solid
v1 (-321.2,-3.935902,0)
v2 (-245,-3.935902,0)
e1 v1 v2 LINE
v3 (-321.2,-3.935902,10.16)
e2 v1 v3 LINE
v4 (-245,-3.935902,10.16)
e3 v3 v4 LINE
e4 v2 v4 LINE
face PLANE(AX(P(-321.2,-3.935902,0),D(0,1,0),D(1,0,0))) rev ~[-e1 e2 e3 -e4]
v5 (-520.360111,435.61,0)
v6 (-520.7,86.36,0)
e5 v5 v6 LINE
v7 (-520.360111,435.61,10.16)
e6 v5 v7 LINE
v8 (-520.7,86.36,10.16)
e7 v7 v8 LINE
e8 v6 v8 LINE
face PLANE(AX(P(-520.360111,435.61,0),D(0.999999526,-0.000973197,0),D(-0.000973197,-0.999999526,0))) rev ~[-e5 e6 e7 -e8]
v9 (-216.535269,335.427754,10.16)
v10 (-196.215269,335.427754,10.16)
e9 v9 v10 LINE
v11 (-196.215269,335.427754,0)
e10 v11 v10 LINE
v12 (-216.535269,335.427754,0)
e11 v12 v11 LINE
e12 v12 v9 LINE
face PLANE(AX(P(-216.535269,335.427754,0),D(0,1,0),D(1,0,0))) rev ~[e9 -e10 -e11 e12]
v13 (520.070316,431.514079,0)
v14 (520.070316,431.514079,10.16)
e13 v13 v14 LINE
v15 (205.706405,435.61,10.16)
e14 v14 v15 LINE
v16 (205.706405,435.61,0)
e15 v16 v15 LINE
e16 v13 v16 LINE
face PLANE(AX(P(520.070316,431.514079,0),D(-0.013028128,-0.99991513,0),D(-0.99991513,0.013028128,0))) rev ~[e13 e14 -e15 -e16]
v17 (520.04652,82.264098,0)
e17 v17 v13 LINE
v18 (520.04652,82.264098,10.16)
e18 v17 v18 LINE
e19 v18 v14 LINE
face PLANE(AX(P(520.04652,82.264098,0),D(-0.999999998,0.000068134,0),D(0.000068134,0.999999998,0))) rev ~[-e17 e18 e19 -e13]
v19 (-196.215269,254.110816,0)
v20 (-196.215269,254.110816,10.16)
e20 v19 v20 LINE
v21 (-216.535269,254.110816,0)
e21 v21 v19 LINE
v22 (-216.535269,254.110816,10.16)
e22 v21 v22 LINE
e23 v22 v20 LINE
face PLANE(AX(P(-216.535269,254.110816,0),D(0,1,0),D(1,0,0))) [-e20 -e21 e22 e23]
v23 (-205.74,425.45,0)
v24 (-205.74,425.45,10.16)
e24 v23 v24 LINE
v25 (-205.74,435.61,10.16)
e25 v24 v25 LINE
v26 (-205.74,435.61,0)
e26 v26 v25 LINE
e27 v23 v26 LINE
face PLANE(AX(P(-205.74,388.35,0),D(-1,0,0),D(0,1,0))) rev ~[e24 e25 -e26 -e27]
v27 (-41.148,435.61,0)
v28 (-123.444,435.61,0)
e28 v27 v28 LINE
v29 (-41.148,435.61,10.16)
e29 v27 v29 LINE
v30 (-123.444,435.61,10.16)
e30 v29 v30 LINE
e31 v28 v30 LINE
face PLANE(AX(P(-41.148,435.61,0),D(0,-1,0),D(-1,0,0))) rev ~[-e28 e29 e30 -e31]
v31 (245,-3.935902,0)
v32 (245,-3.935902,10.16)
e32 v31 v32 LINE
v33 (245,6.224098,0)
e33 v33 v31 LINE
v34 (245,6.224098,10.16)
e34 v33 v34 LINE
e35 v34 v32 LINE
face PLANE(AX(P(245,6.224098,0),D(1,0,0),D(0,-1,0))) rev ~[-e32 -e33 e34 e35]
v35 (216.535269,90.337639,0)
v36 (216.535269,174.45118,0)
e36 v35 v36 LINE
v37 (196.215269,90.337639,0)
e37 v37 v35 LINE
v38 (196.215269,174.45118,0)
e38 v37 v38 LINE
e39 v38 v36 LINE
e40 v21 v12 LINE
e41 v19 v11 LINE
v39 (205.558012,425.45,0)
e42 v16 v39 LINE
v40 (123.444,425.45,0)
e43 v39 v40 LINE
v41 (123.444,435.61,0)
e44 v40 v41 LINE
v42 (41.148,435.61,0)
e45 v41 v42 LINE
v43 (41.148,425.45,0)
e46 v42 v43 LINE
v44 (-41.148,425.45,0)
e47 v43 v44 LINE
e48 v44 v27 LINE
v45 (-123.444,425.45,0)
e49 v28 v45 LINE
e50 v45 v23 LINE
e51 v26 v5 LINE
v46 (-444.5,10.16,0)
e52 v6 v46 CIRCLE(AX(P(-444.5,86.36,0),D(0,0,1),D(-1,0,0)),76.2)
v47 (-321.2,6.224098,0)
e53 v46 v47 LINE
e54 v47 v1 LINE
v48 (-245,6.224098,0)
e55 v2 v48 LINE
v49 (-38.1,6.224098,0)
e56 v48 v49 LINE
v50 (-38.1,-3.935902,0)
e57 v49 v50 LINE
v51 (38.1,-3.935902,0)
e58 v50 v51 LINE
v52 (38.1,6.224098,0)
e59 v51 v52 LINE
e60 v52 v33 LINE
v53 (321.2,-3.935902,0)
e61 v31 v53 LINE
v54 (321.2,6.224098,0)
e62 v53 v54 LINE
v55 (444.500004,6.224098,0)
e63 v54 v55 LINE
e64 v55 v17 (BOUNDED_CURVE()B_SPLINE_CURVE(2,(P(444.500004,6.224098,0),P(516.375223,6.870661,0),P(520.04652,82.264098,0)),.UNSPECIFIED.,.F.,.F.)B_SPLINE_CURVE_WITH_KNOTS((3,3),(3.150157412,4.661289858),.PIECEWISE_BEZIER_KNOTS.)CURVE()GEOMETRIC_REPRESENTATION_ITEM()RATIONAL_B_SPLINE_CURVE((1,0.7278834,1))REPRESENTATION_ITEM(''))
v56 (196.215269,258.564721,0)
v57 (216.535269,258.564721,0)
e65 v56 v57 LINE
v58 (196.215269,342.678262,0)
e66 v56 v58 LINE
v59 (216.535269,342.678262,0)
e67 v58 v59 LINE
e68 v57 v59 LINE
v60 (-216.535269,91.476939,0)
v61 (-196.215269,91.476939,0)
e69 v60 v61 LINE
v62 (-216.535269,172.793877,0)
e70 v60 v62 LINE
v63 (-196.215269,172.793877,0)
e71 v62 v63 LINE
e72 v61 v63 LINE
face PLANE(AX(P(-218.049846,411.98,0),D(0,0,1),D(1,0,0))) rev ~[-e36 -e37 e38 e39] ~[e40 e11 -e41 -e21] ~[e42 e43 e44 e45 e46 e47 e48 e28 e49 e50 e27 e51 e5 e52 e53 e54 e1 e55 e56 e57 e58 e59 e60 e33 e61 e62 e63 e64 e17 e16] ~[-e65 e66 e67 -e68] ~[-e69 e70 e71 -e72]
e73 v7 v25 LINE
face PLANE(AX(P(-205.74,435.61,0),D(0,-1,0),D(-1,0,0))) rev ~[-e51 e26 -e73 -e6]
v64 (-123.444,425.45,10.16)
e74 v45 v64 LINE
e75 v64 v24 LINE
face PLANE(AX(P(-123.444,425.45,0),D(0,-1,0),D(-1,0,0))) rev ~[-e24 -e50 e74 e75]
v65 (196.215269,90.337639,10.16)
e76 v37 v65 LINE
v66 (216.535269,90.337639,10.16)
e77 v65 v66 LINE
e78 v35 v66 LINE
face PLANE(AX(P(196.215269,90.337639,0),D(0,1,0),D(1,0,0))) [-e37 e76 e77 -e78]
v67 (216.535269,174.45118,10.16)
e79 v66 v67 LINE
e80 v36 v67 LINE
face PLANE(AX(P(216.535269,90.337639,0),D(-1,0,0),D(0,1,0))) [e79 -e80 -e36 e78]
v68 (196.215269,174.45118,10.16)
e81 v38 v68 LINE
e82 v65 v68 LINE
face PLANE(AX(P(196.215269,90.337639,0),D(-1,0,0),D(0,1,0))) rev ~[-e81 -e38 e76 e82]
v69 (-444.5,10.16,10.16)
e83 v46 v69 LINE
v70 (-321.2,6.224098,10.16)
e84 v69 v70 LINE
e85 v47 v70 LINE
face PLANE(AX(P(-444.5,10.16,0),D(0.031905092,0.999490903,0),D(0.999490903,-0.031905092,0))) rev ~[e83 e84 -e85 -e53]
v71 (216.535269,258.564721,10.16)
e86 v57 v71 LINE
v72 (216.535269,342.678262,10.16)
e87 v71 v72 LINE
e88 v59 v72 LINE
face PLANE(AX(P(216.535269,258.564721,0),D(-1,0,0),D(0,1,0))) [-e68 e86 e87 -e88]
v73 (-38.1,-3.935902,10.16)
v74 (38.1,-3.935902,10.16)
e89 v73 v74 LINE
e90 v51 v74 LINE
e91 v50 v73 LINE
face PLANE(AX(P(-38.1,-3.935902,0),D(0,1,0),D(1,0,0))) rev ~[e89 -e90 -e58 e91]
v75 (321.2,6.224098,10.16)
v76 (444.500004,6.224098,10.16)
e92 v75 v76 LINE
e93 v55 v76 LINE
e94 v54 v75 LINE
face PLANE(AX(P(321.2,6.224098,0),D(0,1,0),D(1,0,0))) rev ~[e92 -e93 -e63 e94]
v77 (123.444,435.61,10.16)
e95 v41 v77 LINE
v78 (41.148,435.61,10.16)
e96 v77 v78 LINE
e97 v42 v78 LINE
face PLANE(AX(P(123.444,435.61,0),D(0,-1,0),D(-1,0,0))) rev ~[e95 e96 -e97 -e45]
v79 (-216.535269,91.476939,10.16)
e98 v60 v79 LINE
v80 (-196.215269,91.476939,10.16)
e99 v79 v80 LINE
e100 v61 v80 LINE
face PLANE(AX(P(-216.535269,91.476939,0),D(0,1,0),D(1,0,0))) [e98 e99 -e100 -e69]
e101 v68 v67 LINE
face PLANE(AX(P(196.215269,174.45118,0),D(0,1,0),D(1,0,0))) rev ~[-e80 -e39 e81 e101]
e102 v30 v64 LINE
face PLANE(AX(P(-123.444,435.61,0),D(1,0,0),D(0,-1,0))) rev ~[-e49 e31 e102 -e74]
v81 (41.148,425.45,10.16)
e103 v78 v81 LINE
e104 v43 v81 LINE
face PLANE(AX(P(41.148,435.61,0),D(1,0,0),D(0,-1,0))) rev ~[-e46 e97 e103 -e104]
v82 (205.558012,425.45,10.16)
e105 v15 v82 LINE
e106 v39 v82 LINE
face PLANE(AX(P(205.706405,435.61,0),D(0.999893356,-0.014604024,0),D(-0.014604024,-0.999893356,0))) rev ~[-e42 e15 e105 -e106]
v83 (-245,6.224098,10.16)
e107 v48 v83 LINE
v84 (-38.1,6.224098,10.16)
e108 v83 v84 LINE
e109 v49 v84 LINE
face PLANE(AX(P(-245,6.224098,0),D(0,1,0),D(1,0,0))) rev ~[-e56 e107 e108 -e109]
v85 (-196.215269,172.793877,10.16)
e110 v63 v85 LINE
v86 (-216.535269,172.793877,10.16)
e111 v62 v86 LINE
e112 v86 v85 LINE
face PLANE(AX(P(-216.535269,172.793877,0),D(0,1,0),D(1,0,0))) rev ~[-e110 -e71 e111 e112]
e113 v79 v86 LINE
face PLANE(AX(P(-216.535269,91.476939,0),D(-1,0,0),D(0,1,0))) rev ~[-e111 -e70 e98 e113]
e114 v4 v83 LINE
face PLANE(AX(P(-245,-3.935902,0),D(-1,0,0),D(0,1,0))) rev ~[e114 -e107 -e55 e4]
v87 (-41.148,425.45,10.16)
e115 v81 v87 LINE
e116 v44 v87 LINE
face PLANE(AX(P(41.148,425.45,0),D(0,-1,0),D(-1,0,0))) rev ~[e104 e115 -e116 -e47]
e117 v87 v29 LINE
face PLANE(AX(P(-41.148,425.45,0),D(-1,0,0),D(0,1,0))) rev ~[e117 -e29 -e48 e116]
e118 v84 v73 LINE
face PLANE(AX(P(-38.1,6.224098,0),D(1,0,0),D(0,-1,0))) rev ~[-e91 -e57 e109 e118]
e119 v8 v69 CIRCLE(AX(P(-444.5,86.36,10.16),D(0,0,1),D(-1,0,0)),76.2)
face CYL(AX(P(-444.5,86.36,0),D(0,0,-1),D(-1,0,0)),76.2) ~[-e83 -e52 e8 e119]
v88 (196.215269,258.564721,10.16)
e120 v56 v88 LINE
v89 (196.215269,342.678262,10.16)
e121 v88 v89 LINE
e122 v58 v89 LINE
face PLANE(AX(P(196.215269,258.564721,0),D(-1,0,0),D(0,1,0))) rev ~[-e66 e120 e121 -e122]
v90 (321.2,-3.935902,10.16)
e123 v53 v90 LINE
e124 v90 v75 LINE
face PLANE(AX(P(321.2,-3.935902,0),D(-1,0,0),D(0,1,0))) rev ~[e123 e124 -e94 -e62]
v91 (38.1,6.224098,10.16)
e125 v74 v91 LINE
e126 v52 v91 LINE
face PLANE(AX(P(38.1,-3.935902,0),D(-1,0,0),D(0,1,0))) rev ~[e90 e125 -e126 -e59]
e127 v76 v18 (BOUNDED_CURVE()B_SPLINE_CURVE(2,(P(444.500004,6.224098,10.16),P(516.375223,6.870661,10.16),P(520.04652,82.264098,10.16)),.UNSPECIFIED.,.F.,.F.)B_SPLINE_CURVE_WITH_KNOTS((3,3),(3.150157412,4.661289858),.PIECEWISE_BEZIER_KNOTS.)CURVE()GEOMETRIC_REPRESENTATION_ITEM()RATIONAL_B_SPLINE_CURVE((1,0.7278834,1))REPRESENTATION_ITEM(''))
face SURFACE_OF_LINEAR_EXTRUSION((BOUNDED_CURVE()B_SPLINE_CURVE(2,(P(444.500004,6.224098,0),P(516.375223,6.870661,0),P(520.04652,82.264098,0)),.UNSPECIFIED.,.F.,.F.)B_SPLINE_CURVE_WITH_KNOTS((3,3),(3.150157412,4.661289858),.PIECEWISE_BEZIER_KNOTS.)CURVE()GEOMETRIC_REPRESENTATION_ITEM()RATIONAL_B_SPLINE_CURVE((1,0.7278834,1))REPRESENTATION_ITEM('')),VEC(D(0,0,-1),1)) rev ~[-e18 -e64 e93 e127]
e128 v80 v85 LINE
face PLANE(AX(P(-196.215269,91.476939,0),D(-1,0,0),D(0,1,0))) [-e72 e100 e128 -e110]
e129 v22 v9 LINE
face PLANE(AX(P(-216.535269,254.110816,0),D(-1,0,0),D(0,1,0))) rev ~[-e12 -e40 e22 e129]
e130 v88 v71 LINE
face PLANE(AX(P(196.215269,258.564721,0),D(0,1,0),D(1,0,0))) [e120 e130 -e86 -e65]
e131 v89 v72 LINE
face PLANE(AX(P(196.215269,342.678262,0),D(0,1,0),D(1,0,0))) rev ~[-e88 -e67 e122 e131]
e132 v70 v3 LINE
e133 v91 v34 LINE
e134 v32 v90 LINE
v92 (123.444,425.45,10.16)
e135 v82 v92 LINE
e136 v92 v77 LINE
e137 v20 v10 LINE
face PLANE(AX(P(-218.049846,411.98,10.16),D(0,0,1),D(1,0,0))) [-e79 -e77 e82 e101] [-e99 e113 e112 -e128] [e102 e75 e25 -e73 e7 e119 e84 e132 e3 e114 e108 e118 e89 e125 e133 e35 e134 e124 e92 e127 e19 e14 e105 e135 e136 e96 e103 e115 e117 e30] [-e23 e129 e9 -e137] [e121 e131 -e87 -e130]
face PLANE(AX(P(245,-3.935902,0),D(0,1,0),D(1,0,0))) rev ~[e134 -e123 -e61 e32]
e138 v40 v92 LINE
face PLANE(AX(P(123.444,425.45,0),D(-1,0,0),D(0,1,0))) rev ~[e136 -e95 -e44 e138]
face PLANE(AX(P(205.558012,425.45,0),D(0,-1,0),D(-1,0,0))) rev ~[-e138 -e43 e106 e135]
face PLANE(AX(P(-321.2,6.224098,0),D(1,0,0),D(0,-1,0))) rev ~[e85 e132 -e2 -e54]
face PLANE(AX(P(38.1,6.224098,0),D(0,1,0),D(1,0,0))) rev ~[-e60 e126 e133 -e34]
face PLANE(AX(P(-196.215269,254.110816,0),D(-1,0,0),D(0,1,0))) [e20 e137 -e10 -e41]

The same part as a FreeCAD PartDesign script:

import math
import FreeCAD as App
import Part
import Sketcher
from FreeCAD import Vector
Q = App.Units.Quantity


def add_polygon(sketch, points):
    """Adds a closed chain of lines whose ends are joined by coincident constraints."""
    first, n = sketch.GeometryCount, len(points)
    for a, b in zip(points, points[1:] + points[:1]):
        sketch.addGeometry(Part.LineSegment(App.Vector(*a, 0), App.Vector(*b, 0)), False)
    for i in range(n):
        sketch.addConstraint(Sketcher.Constraint("Coincident", first + i, 2, first + (i + 1) % n, 1))

doc = App.newDocument("Part")
body = doc.addObject("PartDesign::Body", "Body")

# Sketch on XY plane
sketch1 = doc.addObject("Sketcher::SketchObject", "Sketch")
body.addObject(sketch1)
sketch1.AttachmentSupport = (doc.XY_Plane, [""])
sketch1.MapMode = "FlatFace"
sketch1.addGeometry(Part.ArcOfCircle(Part.Circle(Vector(-444.5, 86.36, 0), Vector(0, 0, 1), 76.2), math.radians(-180), math.radians(-90)), False)  # 0
sketch1.addGeometry(Part.LineSegment(Vector(-444.5, 10.16, 0), Vector(-321.2, 6.224098, 0)), False)  # 1
sketch1.addGeometry(Part.LineSegment(Vector(-321.2, 6.224098, 0), Vector(-321.2, -3.935902, 0)), False)  # 2
sketch1.addGeometry(Part.LineSegment(Vector(-321.2, -3.935902, 0), Vector(-245, -3.935902, 0)), False)  # 3
sketch1.addGeometry(Part.LineSegment(Vector(-245, -3.935902, 0), Vector(-245, 6.224098, 0)), False)  # 4
sketch1.addGeometry(Part.LineSegment(Vector(-245, 6.224098, 0), Vector(-38.1, 6.224098, 0)), False)  # 5
sketch1.addGeometry(Part.LineSegment(Vector(-38.1, 6.224098, 0), Vector(-38.1, -3.935902, 0)), False)  # 6
sketch1.addGeometry(Part.LineSegment(Vector(-38.1, -3.935902, 0), Vector(38.1, -3.935902, 0)), False)  # 7
sketch1.addGeometry(Part.LineSegment(Vector(38.1, -3.935902, 0), Vector(38.1, 6.224098, 0)), False)  # 8
sketch1.addGeometry(Part.LineSegment(Vector(38.1, 6.224098, 0), Vector(245, 6.224098, 0)), False)  # 9
sketch1.addGeometry(Part.LineSegment(Vector(245, 6.224098, 0), Vector(245, -3.935902, 0)), False)  # 10
sketch1.addGeometry(Part.LineSegment(Vector(245, -3.935902, 0), Vector(321.2, -3.935902, 0)), False)  # 11
sketch1.addGeometry(Part.LineSegment(Vector(321.2, -3.935902, 0), Vector(321.2, 6.224098, 0)), False)  # 12
sketch1.addGeometry(Part.LineSegment(Vector(321.2, 6.224098, 0), Vector(444.500004, 6.224098, 0)), False)  # 13
sketch1.addGeometry(Part.BSplineCurve([Vector(444.500004, 6.224098, 0), Vector(516.375223, 6.870661, 0), Vector(520.04652, 82.264098, 0)], [3, 3], [3.150157412, 4.661289858], False, 2, [1, 0.7278834, 1], False), False)  # 14
sketch1.addGeometry(Part.LineSegment(Vector(520.04652, 82.264098, 0), Vector(520.070316, 431.514079, 0)), False)  # 15
sketch1.addGeometry(Part.LineSegment(Vector(520.070316, 431.514079, 0), Vector(205.706405, 435.61, 0)), False)  # 16
sketch1.addGeometry(Part.LineSegment(Vector(205.706405, 435.61, 0), Vector(205.558012, 425.45, 0)), False)  # 17
sketch1.addGeometry(Part.LineSegment(Vector(205.558012, 425.45, 0), Vector(123.444, 425.45, 0)), False)  # 18
sketch1.addGeometry(Part.LineSegment(Vector(123.444, 425.45, 0), Vector(123.444, 435.61, 0)), False)  # 19
sketch1.addGeometry(Part.LineSegment(Vector(123.444, 435.61, 0), Vector(41.148, 435.61, 0)), False)  # 20
sketch1.addGeometry(Part.LineSegment(Vector(41.148, 435.61, 0), Vector(41.148, 425.45, 0)), False)  # 21
sketch1.addGeometry(Part.LineSegment(Vector(41.148, 425.45, 0), Vector(-41.148, 425.45, 0)), False)  # 22
sketch1.addGeometry(Part.LineSegment(Vector(-41.148, 425.45, 0), Vector(-41.148, 435.61, 0)), False)  # 23
sketch1.addGeometry(Part.LineSegment(Vector(-41.148, 435.61, 0), Vector(-123.444, 435.61, 0)), False)  # 24
sketch1.addGeometry(Part.LineSegment(Vector(-123.444, 435.61, 0), Vector(-123.444, 425.45, 0)), False)  # 25
sketch1.addGeometry(Part.LineSegment(Vector(-123.444, 425.45, 0), Vector(-205.74, 425.45, 0)), False)  # 26
sketch1.addGeometry(Part.LineSegment(Vector(-205.74, 425.45, 0), Vector(-205.74, 435.61, 0)), False)  # 27
sketch1.addGeometry(Part.LineSegment(Vector(-205.74, 435.61, 0), Vector(-520.360111, 435.61, 0)), False)  # 28
sketch1.addGeometry(Part.LineSegment(Vector(-520.360111, 435.61, 0), Vector(-520.7, 86.36, 0)), False)  # 29
add_polygon(sketch1, [(-196.215269, 91.476939), (-216.535269, 91.476939), (-216.535269, 172.793877), (-196.215269, 172.793877)])  # lines 30-33
add_polygon(sketch1, [(216.535269, 90.337639), (196.215269, 90.337639), (196.215269, 174.45118), (216.535269, 174.45118)])  # lines 34-37
add_polygon(sketch1, [(-196.215269, 254.110816), (-216.535269, 254.110816), (-216.535269, 335.427754), (-196.215269, 335.427754)])  # lines 38-41
add_polygon(sketch1, [(216.535269, 258.564721), (196.215269, 258.564721), (196.215269, 342.678262), (216.535269, 342.678262)])  # lines 42-45
sketch1.addConstraint([
    Sketcher.Constraint("Block", 14),
    Sketcher.Constraint("Coincident", 0, 2, 1, 1),
    Sketcher.Constraint("Coincident", 1, 2, 2, 1),
    Sketcher.Constraint("Coincident", 2, 2, 3, 1),
    Sketcher.Constraint("Coincident", 3, 2, 4, 1),
    Sketcher.Constraint("Coincident", 4, 2, 5, 1),
    Sketcher.Constraint("Coincident", 5, 2, 6, 1),
    Sketcher.Constraint("Coincident", 6, 2, 7, 1),
    Sketcher.Constraint("Coincident", 7, 2, 8, 1),
    Sketcher.Constraint("Coincident", 8, 2, 9, 1),
    Sketcher.Constraint("Coincident", 9, 2, 10, 1),
    Sketcher.Constraint("Coincident", 10, 2, 11, 1),
    Sketcher.Constraint("Coincident", 11, 2, 12, 1),
    Sketcher.Constraint("Coincident", 12, 2, 13, 1),
    Sketcher.Constraint("Coincident", 13, 2, 14, 1),
    Sketcher.Constraint("Coincident", 14, 2, 15, 1),
    Sketcher.Constraint("Coincident", 15, 2, 16, 1),
    Sketcher.Constraint("Coincident", 16, 2, 17, 1),
    Sketcher.Constraint("Coincident", 17, 2, 18, 1),
    Sketcher.Constraint("Coincident", 18, 2, 19, 1),
    Sketcher.Constraint("Coincident", 19, 2, 20, 1),
    Sketcher.Constraint("Coincident", 20, 2, 21, 1),
    Sketcher.Constraint("Coincident", 21, 2, 22, 1),
    Sketcher.Constraint("Coincident", 22, 2, 23, 1),
    Sketcher.Constraint("Coincident", 23, 2, 24, 1),
    Sketcher.Constraint("Coincident", 24, 2, 25, 1),
    Sketcher.Constraint("Coincident", 25, 2, 26, 1),
    Sketcher.Constraint("Coincident", 26, 2, 27, 1),
    Sketcher.Constraint("Coincident", 27, 2, 28, 1),
    Sketcher.Constraint("Coincident", 28, 2, 29, 1),
    Sketcher.Constraint("Coincident", 29, 2, 0, 1),
    Sketcher.Constraint("Vertical", 2),
    Sketcher.Constraint("Horizontal", 3),
    Sketcher.Constraint("Vertical", 4),
    Sketcher.Constraint("Horizontal", 5),
    Sketcher.Constraint("Vertical", 6),
    Sketcher.Constraint("Horizontal", 7),
    Sketcher.Constraint("Vertical", 8),
    Sketcher.Constraint("Horizontal", 9),
    Sketcher.Constraint("Vertical", 10),
    Sketcher.Constraint("Horizontal", 11),
    Sketcher.Constraint("Vertical", 12),
    Sketcher.Constraint("Horizontal", 13),
    Sketcher.Constraint("Horizontal", 18),
    Sketcher.Constraint("Vertical", 19),
    Sketcher.Constraint("Horizontal", 20),
    Sketcher.Constraint("Vertical", 21),
    Sketcher.Constraint("Horizontal", 22),
    Sketcher.Constraint("Vertical", 23),
    Sketcher.Constraint("Horizontal", 24),
    Sketcher.Constraint("Vertical", 25),
    Sketcher.Constraint("Horizontal", 26),
    Sketcher.Constraint("Vertical", 27),
    Sketcher.Constraint("Horizontal", 28),
    Sketcher.Constraint("Horizontal", 30),
    Sketcher.Constraint("Vertical", 31),
    Sketcher.Constraint("Horizontal", 32),
    Sketcher.Constraint("Vertical", 33),
    Sketcher.Constraint("Horizontal", 34),
    Sketcher.Constraint("Vertical", 35),
    Sketcher.Constraint("Horizontal", 36),
    Sketcher.Constraint("Vertical", 37),
    Sketcher.Constraint("Horizontal", 38),
    Sketcher.Constraint("Vertical", 39),
    Sketcher.Constraint("Horizontal", 40),
    Sketcher.Constraint("Vertical", 41),
    Sketcher.Constraint("Horizontal", 42),
    Sketcher.Constraint("Vertical", 43),
    Sketcher.Constraint("Horizontal", 44),
    Sketcher.Constraint("Vertical", 45),
    Sketcher.Constraint("Symmetric", 5, 2, 8, 2, -2),
    Sketcher.Constraint("Symmetric", 3, 2, 10, 2, -2),
    Sketcher.Constraint("Symmetric", 1, 2, 12, 2, -2),
    Sketcher.Constraint("Symmetric", 20, 2, 23, 2, -2),
    Sketcher.Constraint("Symmetric", 18, 2, 25, 2, -2),
    Sketcher.Constraint("Horizontal", 1, 2, 4, 2),
    Sketcher.Constraint("Horizontal", 3, 2, 6, 2),
    Sketcher.Constraint("Horizontal", 16, 2, 19, 2),
    Sketcher.Constraint("Horizontal", 18, 2, 21, 2),
    Sketcher.Constraint("Horizontal", 24, 2, 27, 2),
    Sketcher.Constraint("Horizontal", 0, 3, 29, 2),
    Sketcher.Constraint("Vertical", 31, 2, 38, 2),
    Sketcher.Constraint("Vertical", 33, 2, 40, 2),
    Sketcher.Constraint("Vertical", 35, 2, 42, 2),
    Sketcher.Constraint("Vertical", 37, 2, 44, 2),
    Sketcher.Constraint("Equal", 3, 7),
    Sketcher.Constraint("Equal", 20, 22),
    Sketcher.Constraint("Equal", 24, 26),
    Sketcher.Constraint("Equal", 32, 34),
    Sketcher.Constraint("Equal", 12, 19),
    Sketcher.Constraint("Equal", 33, 39),
    Sketcher.Constraint("Equal", 37, 43),
    Sketcher.Constraint("Radius", 0, Q("3 in")),
    Sketcher.Constraint("DistanceX", 3, 1, 3, 2, Q("3 in")),
    Sketcher.Constraint("DistanceX", 30, 2, 30, 1, Q("0.8 in")),
    Sketcher.Constraint("DistanceY", 2, 2, 2, 1, Q("0.4 in")),
    Sketcher.Constraint("DistanceX", 0, 2, 5, 2, Q("16 in")),
    Sketcher.Constraint("DistanceX", 29, 2, 0, 2, Q("3 in")),
    Sketcher.Constraint("DistanceX", 20, 2, 20, 1, Q("3.24 in")),
    Sketcher.Constraint("DistanceY", -1, 1, 0, 3, Q("3.4 in")),
    Sketcher.Constraint("DistanceY", -1, 1, 16, 2, Q("17.15 in")),
    Sketcher.Constraint("DistanceX", 5, 1, 5, 2, Q("206.9 mm")),
    Sketcher.Constraint("DistanceY", -1, 1, 34, 2, Q("3.5566 in")),
    Sketcher.Constraint("DistanceY", 13, 2, 15, 2, Q("16.7437 in")),
    Sketcher.Constraint("DistanceX", 28, 2, 28, 1, Q("314.620111 mm")),
    Sketcher.Constraint("DistanceY", 31, 1, 31, 2, Q("81.316939 mm")),
    Sketcher.Constraint("DistanceY", 35, 1, 35, 2, Q("84.113541 mm")),
    Sketcher.Constraint("DistanceX", 18, 2, 18, 1, Q("82.114012 mm")),
    Sketcher.Constraint("DistanceX", 30, 2, -1, 1, Q("216.535269 mm")),
    Sketcher.Constraint("DistanceY", -1, 1, 30, 2, Q("91.476939 mm")),
    Sketcher.Constraint("DistanceX", -1, 1, 34, 2, Q("196.215269 mm")),
    Sketcher.Constraint("DistanceY", -1, 1, 42, 2, Q("258.564721 mm")),
    Sketcher.Constraint("DistanceX", 16, 2, 15, 2, Q("314.363911 mm")),
    Sketcher.Constraint("DistanceY", 31, 2, 38, 2, Q("81.316939 mm")),
    Sketcher.Constraint("Distance", 17, Q("10.161084 mm")),
])
pad1 = doc.addObject("PartDesign::Pad", "Pad")
body.addObject(pad1)
pad1.Profile = sketch1
pad1.Length = Q("0.4 in")

doc.recompute()
